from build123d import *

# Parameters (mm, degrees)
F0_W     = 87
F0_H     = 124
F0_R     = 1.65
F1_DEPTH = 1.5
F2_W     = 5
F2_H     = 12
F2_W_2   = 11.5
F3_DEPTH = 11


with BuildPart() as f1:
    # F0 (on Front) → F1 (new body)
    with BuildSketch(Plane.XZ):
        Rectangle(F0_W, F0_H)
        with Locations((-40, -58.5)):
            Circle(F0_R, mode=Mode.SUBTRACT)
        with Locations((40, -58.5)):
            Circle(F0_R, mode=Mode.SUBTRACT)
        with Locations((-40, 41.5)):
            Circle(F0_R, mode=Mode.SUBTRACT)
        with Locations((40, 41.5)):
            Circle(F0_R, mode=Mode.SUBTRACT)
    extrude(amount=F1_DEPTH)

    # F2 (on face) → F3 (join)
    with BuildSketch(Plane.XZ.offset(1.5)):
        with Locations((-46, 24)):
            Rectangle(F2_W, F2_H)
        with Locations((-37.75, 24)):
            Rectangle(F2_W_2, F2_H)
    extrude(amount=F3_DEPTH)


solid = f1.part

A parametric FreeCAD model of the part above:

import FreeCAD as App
import Part
import Sketcher

doc = App.newDocument("Part")
body = doc.addObject("PartDesign::Body", "Body")

# Sketch on XZ plane
sketch1 = body.newObject("Sketcher::SketchObject", "Sketch")
sketch1.AttachmentSupport = (doc.getObject("XZ_Plane"), [""])
sketch1.MapMode = "FlatFace"
sketch1.addGeometry([
    Part.LineSegment(App.Vector(-43.5, 62, 0), App.Vector(-43.5, -62, 0)),  # 0
    Part.LineSegment(App.Vector(-43.5, -62, 0), App.Vector(43.5, -62, 0)),  # 1
    Part.LineSegment(App.Vector(43.5, -62, 0), App.Vector(43.5, 62, 0)),  # 2
    Part.LineSegment(App.Vector(43.5, 62, 0), App.Vector(-43.5, 62, 0)),  # 3
    Part.Circle(App.Vector(-40, -58.5, 0), App.Vector(0, 0, 1), 1.65),  # 4
    Part.Circle(App.Vector(40, -58.5, 0), App.Vector(0, 0, 1), 1.65),  # 5
    Part.Circle(App.Vector(-40, 41.5, 0), App.Vector(0, 0, 1), 1.65),  # 6
    Part.Circle(App.Vector(40, 41.5, 0), App.Vector(0, 0, 1), 1.65),  # 7
], False)
sketch1.addConstraint([
    Sketcher.Constraint("Coincident", 0, 2, 1, 1),
    Sketcher.Constraint("Coincident", 1, 2, 2, 1),
    Sketcher.Constraint("Coincident", 2, 2, 3, 1),
    Sketcher.Constraint("Coincident", 3, 2, 0, 1),
    Sketcher.Constraint("Vertical", 0),
    Sketcher.Constraint("Horizontal", 1),
    Sketcher.Constraint("Vertical", 2),
    Sketcher.Constraint("Horizontal", 3),
    Sketcher.Constraint("Equal", 4, 5),
    Sketcher.Constraint("Equal", 5, 6),
    Sketcher.Constraint("Equal", 6, 7),
    Sketcher.Constraint("Symmetric", 0, 2, 2, 2, -1, 1),
    Sketcher.Constraint("Symmetric", 4, 3, 5, 3, -2),
    Sketcher.Constraint("Symmetric", 6, 3, 7, 3, -2),
    Sketcher.Constraint("Vertical", 4, 3, 6, 3),
    Sketcher.Constraint("Diameter", 4, 3.3),
    Sketcher.Constraint("DistanceX", 1, 1, 1, 2, 87.0),
    Sketcher.Constraint("DistanceY", 0, 2, 0, 1, 124.0),
    Sketcher.Constraint("DistanceX", 4, 3, -1, 1, 40.0),
    Sketcher.Constraint("DistanceY", 4, 3, 6, 3, 100.0),
    Sketcher.Constraint("DistanceY", 4, 3, -1, 1, 58.5),
])
pad1 = body.newObject("PartDesign::Pad", "Pad")
pad1.Profile = sketch1
pad1.Length = 1.5

# Sketch on XZ plane
sketch2 = body.newObject("Sketcher::SketchObject", "Sketch001")
sketch2.AttachmentSupport = (doc.getObject("XZ_Plane"), [""])
sketch2.MapMode = "FlatFace"
sketch2.AttachmentOffset = App.Placement(App.Vector(0, 0, 1.5), App.Rotation())
sketch2.addGeometry([
    Part.LineSegment(App.Vector(-48.5, 30, 0), App.Vector(-48.5, 18, 0)),
    Part.LineSegment(App.Vector(-48.5, 18, 0), App.Vector(-32, 18, 0)),
    Part.LineSegment(App.Vector(-32, 18, 0), App.Vector(-32, 30, 0)),
    Part.LineSegment(App.Vector(-32, 30, 0), App.Vector(-48.5, 30, 0)),
], False)
sketch2.addConstraint([
    Sketcher.Constraint("Coincident", 0, 2, 1, 1),
    Sketcher.Constraint("Coincident", 1, 2, 2, 1),
    Sketcher.Constraint("Coincident", 2, 2, 3, 1),
    Sketcher.Constraint("Coincident", 3, 2, 0, 1),
    Sketcher.Constraint("Vertical", 0),
    Sketcher.Constraint("Horizontal", 1),
    Sketcher.Constraint("Vertical", 2),
    Sketcher.Constraint("Horizontal", 3),
    Sketcher.Constraint("DistanceY", 0, 2, 0, 1, 12.0),
    Sketcher.Constraint("DistanceX", 1, 1, 1, 2, 16.5),
    Sketcher.Constraint("DistanceY", -1, 1, 0, 2, 18.0),
    Sketcher.Constraint("DistanceX", 1, 2, -1, 1, 32.0),
])
pad2 = body.newObject("PartDesign::Pad", "Pad001")
pad2.Profile = sketch2
pad2.Length = 11

doc.recompute()
